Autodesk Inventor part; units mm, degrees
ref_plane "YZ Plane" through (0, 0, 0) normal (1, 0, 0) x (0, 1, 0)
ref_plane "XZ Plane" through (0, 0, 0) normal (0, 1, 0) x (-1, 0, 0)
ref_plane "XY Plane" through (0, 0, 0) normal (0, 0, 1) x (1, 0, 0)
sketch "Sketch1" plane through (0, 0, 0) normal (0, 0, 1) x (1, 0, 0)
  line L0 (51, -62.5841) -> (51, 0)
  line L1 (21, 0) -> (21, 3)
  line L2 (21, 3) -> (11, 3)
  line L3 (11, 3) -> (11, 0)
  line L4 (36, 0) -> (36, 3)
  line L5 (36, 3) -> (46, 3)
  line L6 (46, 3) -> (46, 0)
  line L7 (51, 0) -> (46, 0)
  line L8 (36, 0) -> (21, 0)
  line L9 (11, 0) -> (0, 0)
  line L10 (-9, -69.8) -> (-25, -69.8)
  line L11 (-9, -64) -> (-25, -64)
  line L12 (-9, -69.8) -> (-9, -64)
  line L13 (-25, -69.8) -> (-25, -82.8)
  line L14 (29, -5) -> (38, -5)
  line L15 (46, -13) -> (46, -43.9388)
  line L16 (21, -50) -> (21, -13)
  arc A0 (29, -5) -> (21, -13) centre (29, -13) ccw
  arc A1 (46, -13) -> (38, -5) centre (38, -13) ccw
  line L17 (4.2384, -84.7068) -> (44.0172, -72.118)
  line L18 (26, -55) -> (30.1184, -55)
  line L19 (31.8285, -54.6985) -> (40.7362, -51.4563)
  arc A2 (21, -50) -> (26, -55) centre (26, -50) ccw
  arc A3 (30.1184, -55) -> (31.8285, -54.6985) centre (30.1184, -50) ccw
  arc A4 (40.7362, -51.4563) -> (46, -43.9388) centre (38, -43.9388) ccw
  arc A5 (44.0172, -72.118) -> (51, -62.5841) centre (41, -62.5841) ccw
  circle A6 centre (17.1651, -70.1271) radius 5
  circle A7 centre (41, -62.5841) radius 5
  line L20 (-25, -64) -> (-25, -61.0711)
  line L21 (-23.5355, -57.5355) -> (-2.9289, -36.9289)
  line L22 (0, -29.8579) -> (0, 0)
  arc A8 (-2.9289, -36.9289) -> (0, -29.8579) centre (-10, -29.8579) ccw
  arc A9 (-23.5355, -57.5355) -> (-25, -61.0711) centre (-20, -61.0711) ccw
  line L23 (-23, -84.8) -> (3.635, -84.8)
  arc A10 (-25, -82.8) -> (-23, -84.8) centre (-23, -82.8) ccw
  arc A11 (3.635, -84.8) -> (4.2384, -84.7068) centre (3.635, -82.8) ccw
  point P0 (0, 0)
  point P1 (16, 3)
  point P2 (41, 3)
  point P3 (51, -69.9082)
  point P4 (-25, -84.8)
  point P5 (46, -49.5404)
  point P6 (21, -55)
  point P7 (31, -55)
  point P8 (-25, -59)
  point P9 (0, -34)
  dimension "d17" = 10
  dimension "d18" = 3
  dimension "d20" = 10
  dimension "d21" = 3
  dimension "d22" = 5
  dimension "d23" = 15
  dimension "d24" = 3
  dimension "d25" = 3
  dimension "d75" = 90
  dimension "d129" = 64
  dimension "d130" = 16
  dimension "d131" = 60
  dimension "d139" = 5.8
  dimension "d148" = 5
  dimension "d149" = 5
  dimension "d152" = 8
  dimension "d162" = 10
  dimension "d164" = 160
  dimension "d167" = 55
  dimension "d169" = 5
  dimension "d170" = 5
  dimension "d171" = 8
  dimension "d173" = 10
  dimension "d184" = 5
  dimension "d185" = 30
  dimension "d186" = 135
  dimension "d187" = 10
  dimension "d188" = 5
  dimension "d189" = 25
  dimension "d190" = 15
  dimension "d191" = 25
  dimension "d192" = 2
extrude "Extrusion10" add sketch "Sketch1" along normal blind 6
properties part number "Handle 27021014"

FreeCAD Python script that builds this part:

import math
import FreeCAD as App
import Part
import Sketcher

V = App.Vector
Q = App.Units.Quantity

doc = App.newDocument("Part")
body = doc.addObject("PartDesign::Body", "Body")

# Sketch on XY plane
sketch1 = body.newObject("Sketcher::SketchObject", "Sketch")
sketch1.AttachmentSupport = (doc.getObject("XY_Plane"), [""])
sketch1.MapMode = "FlatFace"
sketch1.addGeometry(Part.ArcOfCircle(Part.Circle(V(41, -62.6, 0), V(0, 0, 1), 10), math.radians(-72), math.radians(0)), False)
sketch1.addGeometry(Part.LineSegment(V(51, -62.6, 0), V(51, 0, 0)), False)
sketch1.addGeometry(Part.LineSegment(V(51, 0, 0), V(46, 0, 0)), False)
sketch1.addGeometry(Part.LineSegment(V(46, 0, 0), V(46, 3, 0)), False)
sketch1.addGeometry(Part.LineSegment(V(46, 3, 0), V(36, 3, 0)), False)
sketch1.addGeometry(Part.LineSegment(V(36, 3, 0), V(36, 0, 0)), False)
sketch1.addGeometry(Part.LineSegment(V(36, 0, 0), V(21, 0, 0)), False)
sketch1.addGeometry(Part.LineSegment(V(21, 0, 0), V(21, 3, 0)), False)
sketch1.addGeometry(Part.LineSegment(V(21, 3, 0), V(11, 3, 0)), False)
sketch1.addGeometry(Part.LineSegment(V(11, 3, 0), V(11, 0, 0)), False)
sketch1.addGeometry(Part.LineSegment(V(11, 0, 0), V(0, 0, 0)), False)
sketch1.addGeometry(Part.LineSegment(V(0, 0, 0), V(0, -29.9, 0)), False)
sketch1.addGeometry(Part.ArcOfCircle(Part.Circle(V(-10, -29.9, 0), V(0, 0, 1), 10), math.radians(-45), math.radians(0)), False)
sketch1.addGeometry(Part.LineSegment(V(-2.9, -36.9, 0), V(-23.5, -57.5, 0)), False)
sketch1.addGeometry(Part.ArcOfCircle(Part.Circle(V(-20, -61.1, 0), V(0, 0, 1), 5), math.radians(135), math.radians(180)), False)
sketch1.addGeometry(Part.LineSegment(V(-25, -61.1, 0), V(-25, -64, 0)), False)
sketch1.addGeometry(Part.LineSegment(V(-25, -64, 0), V(-9, -64, 0)), False)
sketch1.addGeometry(Part.LineSegment(V(-9, -64, 0), V(-9, -69.8, 0)), False)
sketch1.addGeometry(Part.LineSegment(V(-9, -69.8, 0), V(-25, -69.8, 0)), False)
sketch1.addGeometry(Part.LineSegment(V(-25, -69.8, 0), V(-25, -82.8, 0)), False)
sketch1.addGeometry(Part.ArcOfCircle(Part.Circle(V(-23, -82.8, 0), V(0, 0, 1), 2), math.radians(180), math.radians(270)), False)
sketch1.addGeometry(Part.LineSegment(V(-23, -84.8, 0), V(3.6, -84.8, 0)), False)
sketch1.addGeometry(Part.ArcOfCircle(Part.Circle(V(3.6, -82.8, 0), V(0, 0, 1), 2), math.radians(-90), math.radians(-72.44)), False)
sketch1.addGeometry(Part.LineSegment(V(4.2, -84.7, 0), V(44, -72.1, 0)), False)
sketch1.addGeometry(Part.Circle(V(17.2, -70.1, 0), V(0, 0, 1), 5), False)
sketch1.addGeometry(Part.Circle(V(41, -62.6, 0), V(0, 0, 1), 5), False)
sketch1.addGeometry(Part.ArcOfCircle(Part.Circle(V(29, -13, 0), V(0, 0, 1), 8), math.radians(90), math.radians(180)), False)
sketch1.addGeometry(Part.LineSegment(V(29, -5, 0), V(38, -5, 0)), False)
sketch1.addGeometry(Part.ArcOfCircle(Part.Circle(V(38, -13, 0), V(0, 0, 1), 8), math.radians(0), math.radians(90)), False)
sketch1.addGeometry(Part.LineSegment(V(46, -13, 0), V(46, -43.9, 0)), False)
sketch1.addGeometry(Part.ArcOfCircle(Part.Circle(V(38, -43.9, 0), V(0, 0, 1), 8), math.radians(-70), math.radians(0)), False)
sketch1.addGeometry(Part.LineSegment(V(40.7, -51.5, 0), V(31.8, -54.7, 0)), False)
sketch1.addGeometry(Part.ArcOfCircle(Part.Circle(V(30.1, -50, 0), V(0, 0, 1), 5), math.radians(-90), math.radians(-70)), False)
sketch1.addGeometry(Part.LineSegment(V(30.1, -55, 0), V(26, -55, 0)), False)
sketch1.addGeometry(Part.ArcOfCircle(Part.Circle(V(26, -50, 0), V(0, 0, 1), 5), math.radians(180), math.radians(270)), False)
sketch1.addGeometry(Part.LineSegment(V(21, -50, 0), V(21, -13, 0)), False)
sketch1.addConstraint(Sketcher.Constraint("Tangent", 0, 2, 1, 1))
sketch1.addConstraint(Sketcher.Constraint("Coincident", 1, 2, 2, 1))
sketch1.addConstraint(Sketcher.Constraint("Coincident", 2, 2, 3, 1))
sketch1.addConstraint(Sketcher.Constraint("Coincident", 3, 2, 4, 1))
sketch1.addConstraint(Sketcher.Constraint("Coincident", 4, 2, 5, 1))
sketch1.addConstraint(Sketcher.Constraint("Coincident", 5, 2, 6, 1))
sketch1.addConstraint(Sketcher.Constraint("Coincident", 6, 2, 7, 1))
sketch1.addConstraint(Sketcher.Constraint("Coincident", 7, 2, 8, 1))
sketch1.addConstraint(Sketcher.Constraint("Coincident", 8, 2, 9, 1))
sketch1.addConstraint(Sketcher.Constraint("Coincident", 9, 2, 10, 1))
sketch1.addConstraint(Sketcher.Constraint("Coincident", 10, 2, 11, 1))
sketch1.addConstraint(Sketcher.Constraint("Tangent", 11, 2, 12, 2))
sketch1.addConstraint(Sketcher.Constraint("Tangent", 12, 1, 13, 1))
sketch1.addConstraint(Sketcher.Constraint("Tangent", 13, 2, 14, 1))
sketch1.addConstraint(Sketcher.Constraint("Tangent", 14, 2, 15, 1))
sketch1.addConstraint(Sketcher.Constraint("Coincident", 15, 2, 16, 1))
sketch1.addConstraint(Sketcher.Constraint("Coincident", 16, 2, 17, 1))
sketch1.addConstraint(Sketcher.Constraint("Coincident", 17, 2, 18, 1))
sketch1.addConstraint(Sketcher.Constraint("Coincident", 18, 2, 19, 1))
sketch1.addConstraint(Sketcher.Constraint("Tangent", 19, 2, 20, 1))
sketch1.addConstraint(Sketcher.Constraint("Tangent", 20, 2, 21, 1))
sketch1.addConstraint(Sketcher.Constraint("Tangent", 21, 2, 22, 1))
sketch1.addConstraint(Sketcher.Constraint("Tangent", 22, 2, 23, 1))
sketch1.addConstraint(Sketcher.Constraint("Tangent", 23, 2, 0, 1))
sketch1.addConstraint(Sketcher.Constraint("Tangent", 26, 1, 27, 1))
sketch1.addConstraint(Sketcher.Constraint("Tangent", 27, 2, 28, 2))
sketch1.addConstraint(Sketcher.Constraint("Tangent", 28, 1, 29, 1))
sketch1.addConstraint(Sketcher.Constraint("Tangent", 29, 2, 30, 2))
sketch1.addConstraint(Sketcher.Constraint("Tangent", 30, 1, 31, 1))
sketch1.addConstraint(Sketcher.Constraint("Tangent", 31, 2, 32, 2))
sketch1.addConstraint(Sketcher.Constraint("Tangent", 32, 1, 33, 1))
sketch1.addConstraint(Sketcher.Constraint("Tangent", 33, 2, 34, 2))
sketch1.addConstraint(Sketcher.Constraint("Tangent", 34, 1, 35, 1))
sketch1.addConstraint(Sketcher.Constraint("Tangent", 35, 2, 26, 2))
sketch1.addConstraint(Sketcher.Constraint("Vertical", 1))
sketch1.addConstraint(Sketcher.Constraint("Horizontal", 2))
sketch1.addConstraint(Sketcher.Constraint("Vertical", 3))
sketch1.addConstraint(Sketcher.Constraint("Horizontal", 4))
sketch1.addConstraint(Sketcher.Constraint("Vertical", 5))
sketch1.addConstraint(Sketcher.Constraint("Horizontal", 6))
sketch1.addConstraint(Sketcher.Constraint("Vertical", 7))
sketch1.addConstraint(Sketcher.Constraint("Horizontal", 8))
sketch1.addConstraint(Sketcher.Constraint("Vertical", 9))
sketch1.addConstraint(Sketcher.Constraint("Horizontal", 10))
sketch1.addConstraint(Sketcher.Constraint("Vertical", 11))
sketch1.addConstraint(Sketcher.Constraint("Vertical", 15))
sketch1.addConstraint(Sketcher.Constraint("Horizontal", 16))
sketch1.addConstraint(Sketcher.Constraint("Vertical", 17))
sketch1.addConstraint(Sketcher.Constraint("Horizontal", 18))
sketch1.addConstraint(Sketcher.Constraint("Vertical", 19))
sketch1.addConstraint(Sketcher.Constraint("Horizontal", 21))
sketch1.addConstraint(Sketcher.Constraint("Horizontal", 27))
sketch1.addConstraint(Sketcher.Constraint("Vertical", 29))
sketch1.addConstraint(Sketcher.Constraint("Horizontal", 33))
sketch1.addConstraint(Sketcher.Constraint("Vertical", 35))
sketch1.addConstraint(Sketcher.Constraint("Coincident", 10, 2, -1, 1))
sketch1.addConstraint(Sketcher.Constraint("Coincident", 25, 3, 0, 3))
sketch1.addConstraint(Sketcher.Constraint("Equal", 0, 12))
sketch1.addConstraint(Sketcher.Constraint("Equal", 20, 22))
sketch1.addConstraint(Sketcher.Constraint("Equal", 14, 24))
sketch1.addConstraint(Sketcher.Constraint("Equal", 24, 25))
sketch1.addConstraint(Sketcher.Constraint("Equal", 26, 28))
sketch1.addConstraint(Sketcher.Constraint("Equal", 28, 30))
sketch1.addConstraint(Sketcher.Constraint("Equal", 25, 34))
sketch1.addConstraint(Sketcher.Constraint("PointOnObject", 1, 2, -1))
sketch1.addConstraint(Sketcher.Constraint("PointOnObject", 5, 2, -1))
sketch1.addConstraint(Sketcher.Constraint("Horizontal", 4, 2, 7, 2))
sketch1.addConstraint(Sketcher.Constraint("Vertical", 15, 2, 18, 2))
sketch1.addConstraint(Sketcher.Constraint("Vertical", 3, 2, 28, 1))
sketch1.addConstraint(Sketcher.Constraint("Vertical", 7, 2, 34, 1))
sketch1.addConstraint(Sketcher.Constraint("Equal", 4, 8))
sketch1.addConstraint(Sketcher.Constraint("Diameter", 24, Q("10 mm")))
sketch1.addConstraint(Sketcher.Constraint("Radius", 0, Q("10 mm")))
sketch1.addConstraint(Sketcher.Constraint("Radius", 20, Q("2 mm")))
sketch1.addConstraint(Sketcher.Constraint("Radius", 26, Q("8 mm")))
sketch1.addConstraint(Sketcher.Constraint("DistanceX", 2, 2, 2, 1, Q("5 mm")))
sketch1.addConstraint(Sketcher.Constraint("DistanceX", 4, 2, 4, 1, Q("10 mm")))
sketch1.addConstraint(Sketcher.Constraint("DistanceX", 6, 2, 6, 1, Q("15 mm")))
sketch1.addConstraint(Sketcher.Constraint("DistanceX", 16, 1, 16, 2, Q("16 mm")))
sketch1.addConstraint(Sketcher.Constraint("DistanceY", 3, 1, 3, 2, Q("3 mm")))
sketch1.addConstraint(Sketcher.Constraint("Angle", 13, Q("-135 deg")))
sketch1.addConstraint(Sketcher.Constraint("Angle", 31, Q("-159.9996 deg")))
sketch1.addConstraint(Sketcher.Constraint("DistanceY", 17, 2, 17, 1, Q("5.8 mm")))
sketch1.addConstraint(Sketcher.Constraint("DistanceX", 14, 2, -1, 1, Q("25 mm")))
sketch1.addConstraint(Sketcher.Constraint("DistanceY", 15, 2, -1, 1, Q("64 mm")))
sketch1.addConstraint(Sketcher.Constraint("DistanceY", 26, 1, -1, 1, Q("5 mm")))
sketch1.addConstraint(Sketcher.Constraint("DistanceY", 32, 1, -1, 1, Q("55 mm")))
sketch1.addConstraint(Sketcher.Constraint("DistanceX", 20, 3, 0, 3, Q("64 mm")))
sketch1.addConstraint(Sketcher.Constraint("DistanceY", 20, 2, 18, 2, Q("15 mm")))
sketch1.addConstraint(Sketcher.Constraint("Angle", 23, Q("17.561 deg")))
sketch1.addConstraint(Sketcher.Constraint("Radius", 32, Q("5.0011 mm")))
sketch1.addConstraint(Sketcher.Constraint("DistanceX", 21, 1, 21, 2, Q("26.635 mm")))
sketch1.addConstraint(Sketcher.Constraint("DistanceY", 11, 2, 11, 1, Q("29.858 mm")))
sketch1.addConstraint(Sketcher.Constraint("DistanceX", 22, 3, 24, 3, Q("13.53 mm")))
sketch1.addConstraint(Sketcher.Constraint("DistanceY", 32, 3, 30, 3, Q("6.06 mm")))
sketch1.addConstraint(Sketcher.Constraint("DistanceY", 24, 3, -1, 1, Q("70.127 mm")))
pad1 = body.newObject("PartDesign::Pad", "Pad")
pad1.Profile = sketch1
pad1.Length = 6

doc.recompute()
